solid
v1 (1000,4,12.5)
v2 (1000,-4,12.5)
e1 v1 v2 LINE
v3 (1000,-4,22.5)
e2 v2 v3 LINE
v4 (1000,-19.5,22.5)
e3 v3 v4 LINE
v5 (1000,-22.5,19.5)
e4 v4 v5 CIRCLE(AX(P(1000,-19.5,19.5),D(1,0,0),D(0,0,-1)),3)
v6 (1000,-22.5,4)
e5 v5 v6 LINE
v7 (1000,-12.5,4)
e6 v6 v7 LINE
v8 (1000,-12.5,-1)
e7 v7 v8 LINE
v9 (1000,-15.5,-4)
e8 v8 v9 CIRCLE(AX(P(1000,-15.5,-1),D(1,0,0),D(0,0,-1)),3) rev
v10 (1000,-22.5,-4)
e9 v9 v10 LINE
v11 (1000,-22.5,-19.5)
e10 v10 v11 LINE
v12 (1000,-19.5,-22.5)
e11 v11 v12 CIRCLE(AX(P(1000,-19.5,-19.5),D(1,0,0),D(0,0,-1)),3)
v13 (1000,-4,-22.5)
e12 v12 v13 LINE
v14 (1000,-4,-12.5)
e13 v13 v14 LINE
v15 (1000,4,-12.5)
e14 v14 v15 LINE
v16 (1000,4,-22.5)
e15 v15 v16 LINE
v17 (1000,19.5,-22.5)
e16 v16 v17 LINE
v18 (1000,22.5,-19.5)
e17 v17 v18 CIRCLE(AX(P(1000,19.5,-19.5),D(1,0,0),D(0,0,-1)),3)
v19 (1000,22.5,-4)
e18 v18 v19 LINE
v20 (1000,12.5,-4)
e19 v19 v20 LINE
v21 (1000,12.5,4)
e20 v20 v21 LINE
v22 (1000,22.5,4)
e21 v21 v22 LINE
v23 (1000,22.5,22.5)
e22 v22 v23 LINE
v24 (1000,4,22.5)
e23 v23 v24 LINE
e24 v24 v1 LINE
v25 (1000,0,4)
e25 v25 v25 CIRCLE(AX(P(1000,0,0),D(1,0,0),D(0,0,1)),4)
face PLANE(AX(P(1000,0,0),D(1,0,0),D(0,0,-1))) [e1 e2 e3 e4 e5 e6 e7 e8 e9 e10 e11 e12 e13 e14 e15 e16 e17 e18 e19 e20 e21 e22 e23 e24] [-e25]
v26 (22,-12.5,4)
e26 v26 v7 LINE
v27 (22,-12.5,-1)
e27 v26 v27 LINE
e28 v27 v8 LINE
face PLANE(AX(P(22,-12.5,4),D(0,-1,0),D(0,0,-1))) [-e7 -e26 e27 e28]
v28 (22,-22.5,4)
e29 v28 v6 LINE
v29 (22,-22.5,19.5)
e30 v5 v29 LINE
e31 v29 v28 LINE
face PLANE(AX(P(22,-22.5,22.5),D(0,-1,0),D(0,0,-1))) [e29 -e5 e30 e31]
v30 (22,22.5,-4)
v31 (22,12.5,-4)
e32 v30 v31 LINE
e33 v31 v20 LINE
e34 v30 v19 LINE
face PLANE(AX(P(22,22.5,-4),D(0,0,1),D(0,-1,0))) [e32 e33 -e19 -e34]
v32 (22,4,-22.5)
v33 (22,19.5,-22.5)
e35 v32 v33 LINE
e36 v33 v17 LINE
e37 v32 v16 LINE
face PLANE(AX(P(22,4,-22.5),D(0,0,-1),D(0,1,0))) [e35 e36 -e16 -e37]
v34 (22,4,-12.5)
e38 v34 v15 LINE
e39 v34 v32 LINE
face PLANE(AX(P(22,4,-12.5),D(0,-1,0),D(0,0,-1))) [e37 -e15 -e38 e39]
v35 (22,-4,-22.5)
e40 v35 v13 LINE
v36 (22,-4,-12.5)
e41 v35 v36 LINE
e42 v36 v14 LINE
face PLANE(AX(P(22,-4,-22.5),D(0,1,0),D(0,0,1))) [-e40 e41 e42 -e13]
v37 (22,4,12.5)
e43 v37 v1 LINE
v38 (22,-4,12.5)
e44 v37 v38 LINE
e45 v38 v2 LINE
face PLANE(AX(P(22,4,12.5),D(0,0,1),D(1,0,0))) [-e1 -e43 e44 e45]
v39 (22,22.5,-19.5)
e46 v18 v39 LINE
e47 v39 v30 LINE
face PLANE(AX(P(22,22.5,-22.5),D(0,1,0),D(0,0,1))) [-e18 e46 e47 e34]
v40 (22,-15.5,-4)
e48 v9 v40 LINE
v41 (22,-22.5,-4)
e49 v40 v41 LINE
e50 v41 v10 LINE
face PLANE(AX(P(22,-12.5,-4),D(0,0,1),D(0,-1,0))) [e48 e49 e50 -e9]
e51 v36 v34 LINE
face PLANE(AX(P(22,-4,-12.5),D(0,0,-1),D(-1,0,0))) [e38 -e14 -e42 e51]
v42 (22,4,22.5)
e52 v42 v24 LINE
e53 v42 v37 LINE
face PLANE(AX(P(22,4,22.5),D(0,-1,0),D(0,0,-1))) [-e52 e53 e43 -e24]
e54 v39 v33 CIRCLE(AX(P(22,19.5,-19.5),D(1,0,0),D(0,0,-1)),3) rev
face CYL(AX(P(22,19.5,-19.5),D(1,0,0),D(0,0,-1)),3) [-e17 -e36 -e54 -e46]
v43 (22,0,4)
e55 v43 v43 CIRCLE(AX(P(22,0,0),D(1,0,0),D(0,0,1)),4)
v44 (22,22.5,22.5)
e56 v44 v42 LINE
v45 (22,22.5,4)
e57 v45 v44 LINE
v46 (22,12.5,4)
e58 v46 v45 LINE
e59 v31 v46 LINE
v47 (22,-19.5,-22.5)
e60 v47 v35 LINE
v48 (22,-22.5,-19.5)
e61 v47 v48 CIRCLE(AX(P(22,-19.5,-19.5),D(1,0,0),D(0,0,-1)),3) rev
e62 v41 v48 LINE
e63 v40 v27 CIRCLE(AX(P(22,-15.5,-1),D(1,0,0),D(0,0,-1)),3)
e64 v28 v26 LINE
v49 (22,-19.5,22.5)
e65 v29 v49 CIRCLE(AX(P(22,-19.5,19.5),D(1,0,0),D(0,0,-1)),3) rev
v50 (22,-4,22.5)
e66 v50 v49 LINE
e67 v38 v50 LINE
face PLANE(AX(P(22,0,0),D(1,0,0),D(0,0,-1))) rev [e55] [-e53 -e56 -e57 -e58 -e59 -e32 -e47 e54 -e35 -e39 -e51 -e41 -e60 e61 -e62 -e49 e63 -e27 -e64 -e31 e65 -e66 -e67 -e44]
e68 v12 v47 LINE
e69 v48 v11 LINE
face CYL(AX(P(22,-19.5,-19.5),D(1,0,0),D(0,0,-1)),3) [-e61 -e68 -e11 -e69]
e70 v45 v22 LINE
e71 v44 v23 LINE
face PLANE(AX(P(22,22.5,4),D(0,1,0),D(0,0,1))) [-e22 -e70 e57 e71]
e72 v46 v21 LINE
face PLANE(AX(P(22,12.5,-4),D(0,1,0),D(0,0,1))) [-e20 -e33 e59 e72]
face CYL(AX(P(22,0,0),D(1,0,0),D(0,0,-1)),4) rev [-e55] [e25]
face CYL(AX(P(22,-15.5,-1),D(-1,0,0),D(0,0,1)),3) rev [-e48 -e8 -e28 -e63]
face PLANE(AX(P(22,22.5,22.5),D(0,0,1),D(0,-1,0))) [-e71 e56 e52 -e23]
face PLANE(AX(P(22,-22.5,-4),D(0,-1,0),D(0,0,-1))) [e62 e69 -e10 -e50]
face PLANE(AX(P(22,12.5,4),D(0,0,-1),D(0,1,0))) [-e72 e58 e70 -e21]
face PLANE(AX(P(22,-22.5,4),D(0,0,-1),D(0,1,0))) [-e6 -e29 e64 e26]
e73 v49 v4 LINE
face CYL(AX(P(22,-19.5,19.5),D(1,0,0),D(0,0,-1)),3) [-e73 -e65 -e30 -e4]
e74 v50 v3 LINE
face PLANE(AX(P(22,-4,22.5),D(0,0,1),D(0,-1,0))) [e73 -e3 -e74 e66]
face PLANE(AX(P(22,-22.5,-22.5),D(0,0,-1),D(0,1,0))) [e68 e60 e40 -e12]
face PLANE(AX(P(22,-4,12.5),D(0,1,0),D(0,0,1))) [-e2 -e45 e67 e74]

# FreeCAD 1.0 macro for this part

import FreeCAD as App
import Part
import Sketcher
from FreeCAD import Vector
Q = App.Units.Quantity


def edges_at(feature, points):
    """Names of the edges that pass closest to the given points."""
    edges = feature.Shape.Edges
    near = lambda p: min(range(len(edges)), key=lambda i: edges[i].distToShape(Part.Vertex(*p))[0])
    return sorted({f"Edge{near(p) + 1}" for p in points})

doc = App.newDocument("Part")
body = doc.addObject("PartDesign::Body", "Body")

sketch1 = body.newObject("Sketcher::SketchObject", "Sketch")
sketch1.AttachmentSupport = (doc.getObject("YZ_Plane"), [""])
sketch1.MapMode = "FlatFace"
sketch1.AttachmentOffset = App.Placement(Vector(0, 0, 1000), App.Rotation())
sketch1.addGeometry(Part.LineSegment(Vector(-4, -22.5, 0), Vector(-4, -12.5, 0)), False)
sketch1.addGeometry(Part.LineSegment(Vector(-4, -12.5, 0), Vector(4, -12.5, 0)), False)
sketch1.addGeometry(Part.LineSegment(Vector(4, -12.5, 0), Vector(4, -22.5, 0)), False)
sketch1.addGeometry(Part.LineSegment(Vector(4, -22.5, 0), Vector(22.5, -22.5, 0)), False)
sketch1.addGeometry(Part.LineSegment(Vector(22.5, -22.5, 0), Vector(22.5, -4, 0)), False)
sketch1.addGeometry(Part.LineSegment(Vector(22.5, -4, 0), Vector(12.5, -4, 0)), False)
sketch1.addGeometry(Part.LineSegment(Vector(12.5, -4, 0), Vector(12.5, 4, 0)), False)
sketch1.addGeometry(Part.LineSegment(Vector(12.5, 4, 0), Vector(22.5, 4, 0)), False)
sketch1.addGeometry(Part.LineSegment(Vector(22.5, 4, 0), Vector(22.5, 22.5, 0)), False)
sketch1.addGeometry(Part.LineSegment(Vector(22.5, 22.5, 0), Vector(4, 22.5, 0)), False)
sketch1.addGeometry(Part.LineSegment(Vector(4, 22.5, 0), Vector(4, 12.5, 0)), False)
sketch1.addGeometry(Part.LineSegment(Vector(4, 12.5, 0), Vector(-4, 12.5, 0)), False)
sketch1.addGeometry(Part.LineSegment(Vector(-4, 12.5, 0), Vector(-4, 22.5, 0)), False)
sketch1.addGeometry(Part.LineSegment(Vector(-4, 22.5, 0), Vector(-22.5, 22.5, 0)), False)
sketch1.addGeometry(Part.LineSegment(Vector(-22.5, 22.5, 0), Vector(-22.5, 4, 0)), False)
sketch1.addGeometry(Part.LineSegment(Vector(-22.5, 4, 0), Vector(-12.5, 4, 0)), False)
sketch1.addGeometry(Part.LineSegment(Vector(-12.5, 4, 0), Vector(-12.5, -4, 0)), False)
sketch1.addGeometry(Part.LineSegment(Vector(-12.5, -4, 0), Vector(-22.5, -4, 0)), False)
sketch1.addGeometry(Part.LineSegment(Vector(-22.5, -4, 0), Vector(-22.5, -22.5, 0)), False)
sketch1.addGeometry(Part.LineSegment(Vector(-22.5, -22.5, 0), Vector(-4, -22.5, 0)), False)
sketch1.addGeometry(Part.Circle(Vector(0, 0, 0), Vector(0, 0, 1), 4), False)
sketch1.addConstraint(Sketcher.Constraint("Coincident", 0, 2, 1, 1))
sketch1.addConstraint(Sketcher.Constraint("Coincident", 1, 2, 2, 1))
sketch1.addConstraint(Sketcher.Constraint("Coincident", 2, 2, 3, 1))
sketch1.addConstraint(Sketcher.Constraint("Coincident", 3, 2, 4, 1))
sketch1.addConstraint(Sketcher.Constraint("Coincident", 4, 2, 5, 1))
sketch1.addConstraint(Sketcher.Constraint("Coincident", 5, 2, 6, 1))
sketch1.addConstraint(Sketcher.Constraint("Coincident", 6, 2, 7, 1))
sketch1.addConstraint(Sketcher.Constraint("Coincident", 7, 2, 8, 1))
sketch1.addConstraint(Sketcher.Constraint("Coincident", 8, 2, 9, 1))
sketch1.addConstraint(Sketcher.Constraint("Coincident", 9, 2, 10, 1))
sketch1.addConstraint(Sketcher.Constraint("Coincident", 10, 2, 11, 1))
sketch1.addConstraint(Sketcher.Constraint("Coincident", 11, 2, 12, 1))
sketch1.addConstraint(Sketcher.Constraint("Coincident", 12, 2, 13, 1))
sketch1.addConstraint(Sketcher.Constraint("Coincident", 13, 2, 14, 1))
sketch1.addConstraint(Sketcher.Constraint("Coincident", 14, 2, 15, 1))
sketch1.addConstraint(Sketcher.Constraint("Coincident", 15, 2, 16, 1))
sketch1.addConstraint(Sketcher.Constraint("Coincident", 16, 2, 17, 1))
sketch1.addConstraint(Sketcher.Constraint("Coincident", 17, 2, 18, 1))
sketch1.addConstraint(Sketcher.Constraint("Coincident", 18, 2, 19, 1))
sketch1.addConstraint(Sketcher.Constraint("Coincident", 19, 2, 0, 1))
sketch1.addConstraint(Sketcher.Constraint("Vertical", 0))
sketch1.addConstraint(Sketcher.Constraint("Horizontal", 1))
sketch1.addConstraint(Sketcher.Constraint("Vertical", 2))
sketch1.addConstraint(Sketcher.Constraint("Horizontal", 3))
sketch1.addConstraint(Sketcher.Constraint("Vertical", 4))
sketch1.addConstraint(Sketcher.Constraint("Horizontal", 5))
sketch1.addConstraint(Sketcher.Constraint("Vertical", 6))
sketch1.addConstraint(Sketcher.Constraint("Horizontal", 7))
sketch1.addConstraint(Sketcher.Constraint("Vertical", 8))
sketch1.addConstraint(Sketcher.Constraint("Horizontal", 9))
sketch1.addConstraint(Sketcher.Constraint("Vertical", 10))
sketch1.addConstraint(Sketcher.Constraint("Horizontal", 11))
sketch1.addConstraint(Sketcher.Constraint("Vertical", 12))
sketch1.addConstraint(Sketcher.Constraint("Horizontal", 13))
sketch1.addConstraint(Sketcher.Constraint("Vertical", 14))
sketch1.addConstraint(Sketcher.Constraint("Horizontal", 15))
sketch1.addConstraint(Sketcher.Constraint("Vertical", 16))
sketch1.addConstraint(Sketcher.Constraint("Horizontal", 17))
sketch1.addConstraint(Sketcher.Constraint("Vertical", 18))
sketch1.addConstraint(Sketcher.Constraint("Horizontal", 19))
sketch1.addConstraint(Sketcher.Constraint("Coincident", 20, 3, -1, 1))
sketch1.addConstraint(Sketcher.Constraint("Symmetric", 0, 2, 10, 2, -1, 1))
sketch1.addConstraint(Sketcher.Constraint("Symmetric", 2, 2, 12, 2, -1, 1))
sketch1.addConstraint(Sketcher.Constraint("Symmetric", 4, 2, 14, 2, -1, 1))
sketch1.addConstraint(Sketcher.Constraint("Symmetric", 6, 2, 16, 2, -1, 1))
sketch1.addConstraint(Sketcher.Constraint("Symmetric", 8, 2, 18, 2, -1, 1))
sketch1.addConstraint(Sketcher.Constraint("Symmetric", 9, 2, 12, 2, -2))
sketch1.addConstraint(Sketcher.Constraint("Symmetric", 7, 2, 14, 2, -2))
sketch1.addConstraint(Sketcher.Constraint("Equal", 17, 0))
sketch1.addConstraint(Sketcher.Constraint("Equal", 19, 4))
sketch1.addConstraint(Sketcher.Constraint("Equal", 11, 6))
sketch1.addConstraint(Sketcher.Constraint("Diameter", 20, Q("8 mm")))
sketch1.addConstraint(Sketcher.Constraint("DistanceX", 1, 1, 1, 2, Q("8 mm")))
sketch1.addConstraint(Sketcher.Constraint("DistanceX", 5, 2, 5, 1, Q("10 mm")))
sketch1.addConstraint(Sketcher.Constraint("DistanceX", 3, 1, 3, 2, Q("18.5 mm")))
pad1 = body.newObject("PartDesign::Pad", "Pad")
pad1.Profile = sketch1
pad1.Length = 978
pad1.Reversed = True
doc.recompute()

fillet = body.newObject("PartDesign::Fillet", "Fillet")
fillet.Base = (pad1, edges_at(pad1, [
    (511, -22.5, -22.5),
    (511, -12.5, -4),
    (511, -22.5, 22.5),
    (511, 22.5, -22.5),
]))
fillet.Radius = 3

doc.recompute()
